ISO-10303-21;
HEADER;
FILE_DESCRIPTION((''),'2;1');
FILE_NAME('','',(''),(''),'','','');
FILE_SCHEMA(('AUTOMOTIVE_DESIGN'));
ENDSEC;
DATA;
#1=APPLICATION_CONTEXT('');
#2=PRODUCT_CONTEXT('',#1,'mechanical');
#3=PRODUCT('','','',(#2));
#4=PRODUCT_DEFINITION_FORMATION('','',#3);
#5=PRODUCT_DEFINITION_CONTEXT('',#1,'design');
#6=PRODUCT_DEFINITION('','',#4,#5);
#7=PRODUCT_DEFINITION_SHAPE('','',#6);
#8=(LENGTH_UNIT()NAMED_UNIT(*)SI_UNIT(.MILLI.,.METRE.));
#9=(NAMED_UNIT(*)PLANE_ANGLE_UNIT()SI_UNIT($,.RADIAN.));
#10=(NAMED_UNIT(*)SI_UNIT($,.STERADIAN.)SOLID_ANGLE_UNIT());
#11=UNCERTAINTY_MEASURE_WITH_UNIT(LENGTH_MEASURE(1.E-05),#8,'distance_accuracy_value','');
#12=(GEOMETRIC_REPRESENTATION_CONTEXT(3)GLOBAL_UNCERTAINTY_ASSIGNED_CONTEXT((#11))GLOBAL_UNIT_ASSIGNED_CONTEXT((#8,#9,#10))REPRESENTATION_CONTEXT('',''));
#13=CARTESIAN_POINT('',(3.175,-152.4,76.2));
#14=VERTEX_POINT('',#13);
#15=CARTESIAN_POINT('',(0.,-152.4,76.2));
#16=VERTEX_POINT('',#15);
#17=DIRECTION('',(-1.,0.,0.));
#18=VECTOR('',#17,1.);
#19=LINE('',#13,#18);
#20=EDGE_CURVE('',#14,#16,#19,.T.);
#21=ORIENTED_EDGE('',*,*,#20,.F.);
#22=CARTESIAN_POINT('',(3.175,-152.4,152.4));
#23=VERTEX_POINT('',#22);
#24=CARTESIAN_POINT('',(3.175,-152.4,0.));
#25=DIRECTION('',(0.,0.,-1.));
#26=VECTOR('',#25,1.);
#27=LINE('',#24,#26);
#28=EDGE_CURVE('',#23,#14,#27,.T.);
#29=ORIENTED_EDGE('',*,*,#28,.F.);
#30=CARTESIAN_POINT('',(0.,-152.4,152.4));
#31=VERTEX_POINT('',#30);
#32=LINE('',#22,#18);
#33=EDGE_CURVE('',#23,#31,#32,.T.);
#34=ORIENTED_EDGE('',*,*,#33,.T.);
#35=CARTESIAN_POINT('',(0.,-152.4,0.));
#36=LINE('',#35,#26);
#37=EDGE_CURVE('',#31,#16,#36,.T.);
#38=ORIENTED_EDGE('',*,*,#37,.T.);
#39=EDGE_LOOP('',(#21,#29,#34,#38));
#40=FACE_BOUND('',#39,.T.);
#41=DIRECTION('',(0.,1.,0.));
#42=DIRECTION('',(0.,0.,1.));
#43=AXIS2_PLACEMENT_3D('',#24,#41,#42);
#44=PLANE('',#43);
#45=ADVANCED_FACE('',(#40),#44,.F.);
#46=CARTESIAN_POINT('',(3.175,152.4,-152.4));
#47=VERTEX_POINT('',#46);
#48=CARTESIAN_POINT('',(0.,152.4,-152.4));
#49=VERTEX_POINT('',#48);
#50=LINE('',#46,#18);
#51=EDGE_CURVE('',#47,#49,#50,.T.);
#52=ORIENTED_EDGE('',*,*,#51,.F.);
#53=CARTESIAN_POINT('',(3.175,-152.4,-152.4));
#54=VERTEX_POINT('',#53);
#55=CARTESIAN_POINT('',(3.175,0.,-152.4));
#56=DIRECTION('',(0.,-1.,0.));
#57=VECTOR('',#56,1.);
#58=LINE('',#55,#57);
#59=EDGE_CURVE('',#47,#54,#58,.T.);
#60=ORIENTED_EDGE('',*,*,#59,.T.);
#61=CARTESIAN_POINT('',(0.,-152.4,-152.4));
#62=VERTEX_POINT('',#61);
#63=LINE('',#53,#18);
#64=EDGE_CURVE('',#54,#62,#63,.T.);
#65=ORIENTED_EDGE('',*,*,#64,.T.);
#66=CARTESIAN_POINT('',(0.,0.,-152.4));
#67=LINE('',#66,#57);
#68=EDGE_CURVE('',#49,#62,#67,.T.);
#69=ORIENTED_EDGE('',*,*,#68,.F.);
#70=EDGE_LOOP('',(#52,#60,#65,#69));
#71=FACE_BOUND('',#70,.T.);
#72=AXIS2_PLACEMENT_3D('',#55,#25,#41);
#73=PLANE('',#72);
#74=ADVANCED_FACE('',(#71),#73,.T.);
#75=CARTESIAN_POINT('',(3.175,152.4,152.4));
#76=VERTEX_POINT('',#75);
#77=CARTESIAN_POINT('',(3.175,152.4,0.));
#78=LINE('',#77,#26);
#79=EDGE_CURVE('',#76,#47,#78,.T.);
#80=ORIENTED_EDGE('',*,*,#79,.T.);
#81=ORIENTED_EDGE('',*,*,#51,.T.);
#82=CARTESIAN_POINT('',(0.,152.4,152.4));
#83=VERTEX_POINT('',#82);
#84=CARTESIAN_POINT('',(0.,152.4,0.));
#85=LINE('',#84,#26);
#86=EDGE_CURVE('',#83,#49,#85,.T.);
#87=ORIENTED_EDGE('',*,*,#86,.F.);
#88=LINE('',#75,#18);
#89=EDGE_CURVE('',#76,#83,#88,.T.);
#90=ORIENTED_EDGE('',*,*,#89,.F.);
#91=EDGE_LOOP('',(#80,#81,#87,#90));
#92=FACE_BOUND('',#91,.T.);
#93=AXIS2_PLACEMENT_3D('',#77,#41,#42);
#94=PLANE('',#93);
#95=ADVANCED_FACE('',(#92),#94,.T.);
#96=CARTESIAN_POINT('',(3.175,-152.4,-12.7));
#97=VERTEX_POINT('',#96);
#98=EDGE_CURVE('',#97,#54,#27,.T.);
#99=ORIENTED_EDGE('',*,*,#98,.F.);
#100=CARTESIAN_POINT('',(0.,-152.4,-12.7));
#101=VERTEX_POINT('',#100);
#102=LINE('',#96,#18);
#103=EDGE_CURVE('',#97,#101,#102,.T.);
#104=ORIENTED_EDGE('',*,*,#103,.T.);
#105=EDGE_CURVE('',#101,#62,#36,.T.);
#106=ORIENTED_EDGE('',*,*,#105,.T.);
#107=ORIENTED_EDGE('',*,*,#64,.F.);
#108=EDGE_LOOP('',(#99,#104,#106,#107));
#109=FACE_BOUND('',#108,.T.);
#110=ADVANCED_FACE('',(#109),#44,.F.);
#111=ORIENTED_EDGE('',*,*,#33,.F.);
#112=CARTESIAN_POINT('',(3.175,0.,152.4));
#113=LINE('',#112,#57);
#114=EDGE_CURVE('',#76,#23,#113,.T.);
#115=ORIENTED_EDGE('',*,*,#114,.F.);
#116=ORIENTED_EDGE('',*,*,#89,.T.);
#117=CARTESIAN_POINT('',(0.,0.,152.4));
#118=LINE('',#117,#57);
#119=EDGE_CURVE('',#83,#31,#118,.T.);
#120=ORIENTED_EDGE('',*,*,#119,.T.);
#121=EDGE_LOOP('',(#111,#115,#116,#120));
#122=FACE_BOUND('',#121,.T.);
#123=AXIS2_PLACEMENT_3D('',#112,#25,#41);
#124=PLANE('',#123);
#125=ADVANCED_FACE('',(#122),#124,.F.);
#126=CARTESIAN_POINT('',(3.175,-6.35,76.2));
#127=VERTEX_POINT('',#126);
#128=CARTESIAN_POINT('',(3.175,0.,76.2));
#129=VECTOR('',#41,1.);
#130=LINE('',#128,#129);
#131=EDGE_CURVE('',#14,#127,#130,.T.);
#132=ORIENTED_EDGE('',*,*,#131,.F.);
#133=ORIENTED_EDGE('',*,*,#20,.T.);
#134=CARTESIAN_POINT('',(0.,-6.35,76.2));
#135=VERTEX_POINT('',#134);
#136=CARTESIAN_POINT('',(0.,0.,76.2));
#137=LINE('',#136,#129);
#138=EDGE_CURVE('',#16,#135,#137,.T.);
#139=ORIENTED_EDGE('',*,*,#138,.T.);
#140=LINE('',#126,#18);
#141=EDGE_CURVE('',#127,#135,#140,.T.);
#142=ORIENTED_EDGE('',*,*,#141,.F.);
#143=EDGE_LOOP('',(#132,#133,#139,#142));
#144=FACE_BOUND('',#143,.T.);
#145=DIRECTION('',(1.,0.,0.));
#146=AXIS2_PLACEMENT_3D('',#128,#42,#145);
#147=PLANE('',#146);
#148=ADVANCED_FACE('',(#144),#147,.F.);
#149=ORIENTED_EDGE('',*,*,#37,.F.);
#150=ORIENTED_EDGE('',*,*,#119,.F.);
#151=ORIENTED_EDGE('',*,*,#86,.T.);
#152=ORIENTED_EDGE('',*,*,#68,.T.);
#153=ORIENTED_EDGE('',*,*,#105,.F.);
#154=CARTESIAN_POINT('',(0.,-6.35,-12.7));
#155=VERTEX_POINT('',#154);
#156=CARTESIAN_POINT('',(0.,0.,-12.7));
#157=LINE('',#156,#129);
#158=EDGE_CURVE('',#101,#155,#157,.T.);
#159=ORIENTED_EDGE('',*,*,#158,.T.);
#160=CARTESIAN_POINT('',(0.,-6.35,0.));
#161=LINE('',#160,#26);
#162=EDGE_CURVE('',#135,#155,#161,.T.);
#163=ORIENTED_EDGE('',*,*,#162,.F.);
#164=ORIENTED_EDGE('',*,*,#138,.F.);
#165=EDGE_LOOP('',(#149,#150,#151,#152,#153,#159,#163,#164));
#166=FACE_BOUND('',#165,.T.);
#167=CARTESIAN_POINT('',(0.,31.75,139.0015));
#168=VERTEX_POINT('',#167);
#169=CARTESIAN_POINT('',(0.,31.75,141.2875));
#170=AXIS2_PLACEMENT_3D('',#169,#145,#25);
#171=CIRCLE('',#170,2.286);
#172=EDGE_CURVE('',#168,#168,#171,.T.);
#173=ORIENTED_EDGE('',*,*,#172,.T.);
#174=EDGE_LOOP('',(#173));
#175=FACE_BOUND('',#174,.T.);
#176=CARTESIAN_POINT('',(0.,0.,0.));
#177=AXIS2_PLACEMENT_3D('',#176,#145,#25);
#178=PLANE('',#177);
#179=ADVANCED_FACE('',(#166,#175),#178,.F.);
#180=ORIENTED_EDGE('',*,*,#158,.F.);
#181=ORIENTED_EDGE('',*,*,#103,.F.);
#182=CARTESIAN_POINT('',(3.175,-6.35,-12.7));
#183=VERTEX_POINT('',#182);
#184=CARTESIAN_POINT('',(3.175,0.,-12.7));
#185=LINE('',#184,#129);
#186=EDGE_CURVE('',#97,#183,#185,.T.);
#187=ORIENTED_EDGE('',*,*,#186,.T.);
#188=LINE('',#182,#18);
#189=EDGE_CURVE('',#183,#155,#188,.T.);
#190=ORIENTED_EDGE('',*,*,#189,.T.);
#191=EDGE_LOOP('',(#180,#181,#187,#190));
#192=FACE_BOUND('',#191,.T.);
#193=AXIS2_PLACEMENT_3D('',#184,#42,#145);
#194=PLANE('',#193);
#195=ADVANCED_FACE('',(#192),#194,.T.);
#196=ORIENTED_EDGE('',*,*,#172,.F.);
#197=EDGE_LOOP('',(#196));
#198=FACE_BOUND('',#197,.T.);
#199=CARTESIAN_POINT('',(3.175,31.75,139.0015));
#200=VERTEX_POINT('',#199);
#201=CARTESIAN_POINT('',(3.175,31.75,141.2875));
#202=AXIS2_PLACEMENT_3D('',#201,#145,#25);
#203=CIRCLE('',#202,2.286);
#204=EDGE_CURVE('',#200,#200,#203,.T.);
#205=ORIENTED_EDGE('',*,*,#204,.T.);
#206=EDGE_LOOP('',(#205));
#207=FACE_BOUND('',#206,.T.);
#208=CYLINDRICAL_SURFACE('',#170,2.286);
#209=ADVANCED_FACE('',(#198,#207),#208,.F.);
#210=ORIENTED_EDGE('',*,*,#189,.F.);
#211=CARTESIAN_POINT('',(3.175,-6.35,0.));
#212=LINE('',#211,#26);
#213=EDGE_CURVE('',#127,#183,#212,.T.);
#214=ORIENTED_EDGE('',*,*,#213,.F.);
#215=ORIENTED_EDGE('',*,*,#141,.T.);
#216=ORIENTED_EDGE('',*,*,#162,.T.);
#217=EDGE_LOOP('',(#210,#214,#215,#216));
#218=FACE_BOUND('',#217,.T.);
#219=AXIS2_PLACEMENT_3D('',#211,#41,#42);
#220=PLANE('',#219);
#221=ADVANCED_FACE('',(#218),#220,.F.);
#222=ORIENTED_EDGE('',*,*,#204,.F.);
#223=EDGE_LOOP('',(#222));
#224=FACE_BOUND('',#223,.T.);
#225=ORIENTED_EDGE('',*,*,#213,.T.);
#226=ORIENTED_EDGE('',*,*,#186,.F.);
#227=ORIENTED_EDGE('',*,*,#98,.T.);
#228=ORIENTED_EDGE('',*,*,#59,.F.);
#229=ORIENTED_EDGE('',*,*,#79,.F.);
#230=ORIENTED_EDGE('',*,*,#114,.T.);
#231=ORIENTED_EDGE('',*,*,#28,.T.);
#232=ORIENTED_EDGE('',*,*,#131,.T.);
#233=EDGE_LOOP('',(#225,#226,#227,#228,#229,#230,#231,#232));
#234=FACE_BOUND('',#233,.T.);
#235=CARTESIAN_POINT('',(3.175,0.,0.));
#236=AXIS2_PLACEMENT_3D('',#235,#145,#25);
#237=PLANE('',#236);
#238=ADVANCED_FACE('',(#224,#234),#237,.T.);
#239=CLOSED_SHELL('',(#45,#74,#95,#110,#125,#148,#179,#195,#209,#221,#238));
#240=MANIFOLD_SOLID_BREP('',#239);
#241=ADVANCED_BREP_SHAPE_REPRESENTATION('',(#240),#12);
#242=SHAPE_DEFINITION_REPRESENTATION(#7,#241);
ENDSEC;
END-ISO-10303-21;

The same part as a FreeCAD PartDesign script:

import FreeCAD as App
import Part
import Sketcher
Q = App.Units.Quantity


def add_polygon(sketch, points):
    """Adds a closed chain of lines whose ends are joined by coincident constraints."""
    first, n = sketch.GeometryCount, len(points)
    for a, b in zip(points, points[1:] + points[:1]):
        sketch.addGeometry(Part.LineSegment(App.Vector(*a, 0), App.Vector(*b, 0)), False)
    for i in range(n):
        sketch.addConstraint(Sketcher.Constraint("Coincident", first + i, 2, first + (i + 1) % n, 1))

doc = App.newDocument("Part")
body = doc.addObject("PartDesign::Body", "Body")

# Sketch on YZ plane
sketch1 = body.newObject("Sketcher::SketchObject", "Sketch")
sketch1.AttachmentSupport = (doc.getObject("YZ_Plane"), [""])
sketch1.MapMode = "FlatFace"
add_polygon(sketch1, [(152, -152), (152, 152), (-152, 152), (-152, 76), (-6, 76), (-6, -13), (-152, -13), (-152, -152)])  # lines 0-7
sketch1.addConstraint([
    Sketcher.Constraint("Vertical", 0),
    Sketcher.Constraint("Horizontal", 1),
    Sketcher.Constraint("Vertical", 2),
    Sketcher.Constraint("Horizontal", 3),
    Sketcher.Constraint("Vertical", 4),
    Sketcher.Constraint("Horizontal", 5),
    Sketcher.Constraint("Vertical", 6),
    Sketcher.Constraint("Horizontal", 7),
    Sketcher.Constraint("Symmetric", 0, 2, 6, 2, -1, 1),
    Sketcher.Constraint("Vertical", 2, 2, 5, 2),
    Sketcher.Constraint("Equal", 7, 0),
    Sketcher.Constraint("DistanceX", 1, 2, 1, 1, Q("12 in")),
    Sketcher.Constraint("DistanceY", 2, 2, 2, 1, Q("3 in")),
    Sketcher.Constraint("DistanceY", 4, 2, 4, 1, Q("3.5 in")),
    Sketcher.Constraint("DistanceX", 3, 1, 3, 2, Q("5.75 in")),
])
pad1 = body.newObject("PartDesign::Pad", "Pad")
pad1.Profile = sketch1
pad1.Length = Q("0.125 in")

# Sketch on YZ plane
sketch2 = body.newObject("Sketcher::SketchObject", "Sketch001")
sketch2.AttachmentSupport = (doc.getObject("YZ_Plane"), [""])
sketch2.MapMode = "FlatFace"
sketch2.AttachmentOffset = App.Placement(App.Vector(0, 0, 0.125 * 25.4), App.Rotation())
sketch2.addGeometry(Part.Circle(App.Vector(31.8, 141.3, 0), App.Vector(0, 0, 1), 2.3), False)
sketch2.addConstraint([
    Sketcher.Constraint("Diameter", 0, Q("0.18 in")),
    Sketcher.Constraint("DistanceX", -1, 1, 0, 3, Q("1.25 in")),
    Sketcher.Constraint("DistanceY", -1, 1, 0, 3, Q("5.5625 in")),
])
pocket1 = body.newObject("PartDesign::Pocket", "Pocket")
pocket1.Profile = sketch2
pocket1.Type = "ThroughAll"

doc.recompute()
